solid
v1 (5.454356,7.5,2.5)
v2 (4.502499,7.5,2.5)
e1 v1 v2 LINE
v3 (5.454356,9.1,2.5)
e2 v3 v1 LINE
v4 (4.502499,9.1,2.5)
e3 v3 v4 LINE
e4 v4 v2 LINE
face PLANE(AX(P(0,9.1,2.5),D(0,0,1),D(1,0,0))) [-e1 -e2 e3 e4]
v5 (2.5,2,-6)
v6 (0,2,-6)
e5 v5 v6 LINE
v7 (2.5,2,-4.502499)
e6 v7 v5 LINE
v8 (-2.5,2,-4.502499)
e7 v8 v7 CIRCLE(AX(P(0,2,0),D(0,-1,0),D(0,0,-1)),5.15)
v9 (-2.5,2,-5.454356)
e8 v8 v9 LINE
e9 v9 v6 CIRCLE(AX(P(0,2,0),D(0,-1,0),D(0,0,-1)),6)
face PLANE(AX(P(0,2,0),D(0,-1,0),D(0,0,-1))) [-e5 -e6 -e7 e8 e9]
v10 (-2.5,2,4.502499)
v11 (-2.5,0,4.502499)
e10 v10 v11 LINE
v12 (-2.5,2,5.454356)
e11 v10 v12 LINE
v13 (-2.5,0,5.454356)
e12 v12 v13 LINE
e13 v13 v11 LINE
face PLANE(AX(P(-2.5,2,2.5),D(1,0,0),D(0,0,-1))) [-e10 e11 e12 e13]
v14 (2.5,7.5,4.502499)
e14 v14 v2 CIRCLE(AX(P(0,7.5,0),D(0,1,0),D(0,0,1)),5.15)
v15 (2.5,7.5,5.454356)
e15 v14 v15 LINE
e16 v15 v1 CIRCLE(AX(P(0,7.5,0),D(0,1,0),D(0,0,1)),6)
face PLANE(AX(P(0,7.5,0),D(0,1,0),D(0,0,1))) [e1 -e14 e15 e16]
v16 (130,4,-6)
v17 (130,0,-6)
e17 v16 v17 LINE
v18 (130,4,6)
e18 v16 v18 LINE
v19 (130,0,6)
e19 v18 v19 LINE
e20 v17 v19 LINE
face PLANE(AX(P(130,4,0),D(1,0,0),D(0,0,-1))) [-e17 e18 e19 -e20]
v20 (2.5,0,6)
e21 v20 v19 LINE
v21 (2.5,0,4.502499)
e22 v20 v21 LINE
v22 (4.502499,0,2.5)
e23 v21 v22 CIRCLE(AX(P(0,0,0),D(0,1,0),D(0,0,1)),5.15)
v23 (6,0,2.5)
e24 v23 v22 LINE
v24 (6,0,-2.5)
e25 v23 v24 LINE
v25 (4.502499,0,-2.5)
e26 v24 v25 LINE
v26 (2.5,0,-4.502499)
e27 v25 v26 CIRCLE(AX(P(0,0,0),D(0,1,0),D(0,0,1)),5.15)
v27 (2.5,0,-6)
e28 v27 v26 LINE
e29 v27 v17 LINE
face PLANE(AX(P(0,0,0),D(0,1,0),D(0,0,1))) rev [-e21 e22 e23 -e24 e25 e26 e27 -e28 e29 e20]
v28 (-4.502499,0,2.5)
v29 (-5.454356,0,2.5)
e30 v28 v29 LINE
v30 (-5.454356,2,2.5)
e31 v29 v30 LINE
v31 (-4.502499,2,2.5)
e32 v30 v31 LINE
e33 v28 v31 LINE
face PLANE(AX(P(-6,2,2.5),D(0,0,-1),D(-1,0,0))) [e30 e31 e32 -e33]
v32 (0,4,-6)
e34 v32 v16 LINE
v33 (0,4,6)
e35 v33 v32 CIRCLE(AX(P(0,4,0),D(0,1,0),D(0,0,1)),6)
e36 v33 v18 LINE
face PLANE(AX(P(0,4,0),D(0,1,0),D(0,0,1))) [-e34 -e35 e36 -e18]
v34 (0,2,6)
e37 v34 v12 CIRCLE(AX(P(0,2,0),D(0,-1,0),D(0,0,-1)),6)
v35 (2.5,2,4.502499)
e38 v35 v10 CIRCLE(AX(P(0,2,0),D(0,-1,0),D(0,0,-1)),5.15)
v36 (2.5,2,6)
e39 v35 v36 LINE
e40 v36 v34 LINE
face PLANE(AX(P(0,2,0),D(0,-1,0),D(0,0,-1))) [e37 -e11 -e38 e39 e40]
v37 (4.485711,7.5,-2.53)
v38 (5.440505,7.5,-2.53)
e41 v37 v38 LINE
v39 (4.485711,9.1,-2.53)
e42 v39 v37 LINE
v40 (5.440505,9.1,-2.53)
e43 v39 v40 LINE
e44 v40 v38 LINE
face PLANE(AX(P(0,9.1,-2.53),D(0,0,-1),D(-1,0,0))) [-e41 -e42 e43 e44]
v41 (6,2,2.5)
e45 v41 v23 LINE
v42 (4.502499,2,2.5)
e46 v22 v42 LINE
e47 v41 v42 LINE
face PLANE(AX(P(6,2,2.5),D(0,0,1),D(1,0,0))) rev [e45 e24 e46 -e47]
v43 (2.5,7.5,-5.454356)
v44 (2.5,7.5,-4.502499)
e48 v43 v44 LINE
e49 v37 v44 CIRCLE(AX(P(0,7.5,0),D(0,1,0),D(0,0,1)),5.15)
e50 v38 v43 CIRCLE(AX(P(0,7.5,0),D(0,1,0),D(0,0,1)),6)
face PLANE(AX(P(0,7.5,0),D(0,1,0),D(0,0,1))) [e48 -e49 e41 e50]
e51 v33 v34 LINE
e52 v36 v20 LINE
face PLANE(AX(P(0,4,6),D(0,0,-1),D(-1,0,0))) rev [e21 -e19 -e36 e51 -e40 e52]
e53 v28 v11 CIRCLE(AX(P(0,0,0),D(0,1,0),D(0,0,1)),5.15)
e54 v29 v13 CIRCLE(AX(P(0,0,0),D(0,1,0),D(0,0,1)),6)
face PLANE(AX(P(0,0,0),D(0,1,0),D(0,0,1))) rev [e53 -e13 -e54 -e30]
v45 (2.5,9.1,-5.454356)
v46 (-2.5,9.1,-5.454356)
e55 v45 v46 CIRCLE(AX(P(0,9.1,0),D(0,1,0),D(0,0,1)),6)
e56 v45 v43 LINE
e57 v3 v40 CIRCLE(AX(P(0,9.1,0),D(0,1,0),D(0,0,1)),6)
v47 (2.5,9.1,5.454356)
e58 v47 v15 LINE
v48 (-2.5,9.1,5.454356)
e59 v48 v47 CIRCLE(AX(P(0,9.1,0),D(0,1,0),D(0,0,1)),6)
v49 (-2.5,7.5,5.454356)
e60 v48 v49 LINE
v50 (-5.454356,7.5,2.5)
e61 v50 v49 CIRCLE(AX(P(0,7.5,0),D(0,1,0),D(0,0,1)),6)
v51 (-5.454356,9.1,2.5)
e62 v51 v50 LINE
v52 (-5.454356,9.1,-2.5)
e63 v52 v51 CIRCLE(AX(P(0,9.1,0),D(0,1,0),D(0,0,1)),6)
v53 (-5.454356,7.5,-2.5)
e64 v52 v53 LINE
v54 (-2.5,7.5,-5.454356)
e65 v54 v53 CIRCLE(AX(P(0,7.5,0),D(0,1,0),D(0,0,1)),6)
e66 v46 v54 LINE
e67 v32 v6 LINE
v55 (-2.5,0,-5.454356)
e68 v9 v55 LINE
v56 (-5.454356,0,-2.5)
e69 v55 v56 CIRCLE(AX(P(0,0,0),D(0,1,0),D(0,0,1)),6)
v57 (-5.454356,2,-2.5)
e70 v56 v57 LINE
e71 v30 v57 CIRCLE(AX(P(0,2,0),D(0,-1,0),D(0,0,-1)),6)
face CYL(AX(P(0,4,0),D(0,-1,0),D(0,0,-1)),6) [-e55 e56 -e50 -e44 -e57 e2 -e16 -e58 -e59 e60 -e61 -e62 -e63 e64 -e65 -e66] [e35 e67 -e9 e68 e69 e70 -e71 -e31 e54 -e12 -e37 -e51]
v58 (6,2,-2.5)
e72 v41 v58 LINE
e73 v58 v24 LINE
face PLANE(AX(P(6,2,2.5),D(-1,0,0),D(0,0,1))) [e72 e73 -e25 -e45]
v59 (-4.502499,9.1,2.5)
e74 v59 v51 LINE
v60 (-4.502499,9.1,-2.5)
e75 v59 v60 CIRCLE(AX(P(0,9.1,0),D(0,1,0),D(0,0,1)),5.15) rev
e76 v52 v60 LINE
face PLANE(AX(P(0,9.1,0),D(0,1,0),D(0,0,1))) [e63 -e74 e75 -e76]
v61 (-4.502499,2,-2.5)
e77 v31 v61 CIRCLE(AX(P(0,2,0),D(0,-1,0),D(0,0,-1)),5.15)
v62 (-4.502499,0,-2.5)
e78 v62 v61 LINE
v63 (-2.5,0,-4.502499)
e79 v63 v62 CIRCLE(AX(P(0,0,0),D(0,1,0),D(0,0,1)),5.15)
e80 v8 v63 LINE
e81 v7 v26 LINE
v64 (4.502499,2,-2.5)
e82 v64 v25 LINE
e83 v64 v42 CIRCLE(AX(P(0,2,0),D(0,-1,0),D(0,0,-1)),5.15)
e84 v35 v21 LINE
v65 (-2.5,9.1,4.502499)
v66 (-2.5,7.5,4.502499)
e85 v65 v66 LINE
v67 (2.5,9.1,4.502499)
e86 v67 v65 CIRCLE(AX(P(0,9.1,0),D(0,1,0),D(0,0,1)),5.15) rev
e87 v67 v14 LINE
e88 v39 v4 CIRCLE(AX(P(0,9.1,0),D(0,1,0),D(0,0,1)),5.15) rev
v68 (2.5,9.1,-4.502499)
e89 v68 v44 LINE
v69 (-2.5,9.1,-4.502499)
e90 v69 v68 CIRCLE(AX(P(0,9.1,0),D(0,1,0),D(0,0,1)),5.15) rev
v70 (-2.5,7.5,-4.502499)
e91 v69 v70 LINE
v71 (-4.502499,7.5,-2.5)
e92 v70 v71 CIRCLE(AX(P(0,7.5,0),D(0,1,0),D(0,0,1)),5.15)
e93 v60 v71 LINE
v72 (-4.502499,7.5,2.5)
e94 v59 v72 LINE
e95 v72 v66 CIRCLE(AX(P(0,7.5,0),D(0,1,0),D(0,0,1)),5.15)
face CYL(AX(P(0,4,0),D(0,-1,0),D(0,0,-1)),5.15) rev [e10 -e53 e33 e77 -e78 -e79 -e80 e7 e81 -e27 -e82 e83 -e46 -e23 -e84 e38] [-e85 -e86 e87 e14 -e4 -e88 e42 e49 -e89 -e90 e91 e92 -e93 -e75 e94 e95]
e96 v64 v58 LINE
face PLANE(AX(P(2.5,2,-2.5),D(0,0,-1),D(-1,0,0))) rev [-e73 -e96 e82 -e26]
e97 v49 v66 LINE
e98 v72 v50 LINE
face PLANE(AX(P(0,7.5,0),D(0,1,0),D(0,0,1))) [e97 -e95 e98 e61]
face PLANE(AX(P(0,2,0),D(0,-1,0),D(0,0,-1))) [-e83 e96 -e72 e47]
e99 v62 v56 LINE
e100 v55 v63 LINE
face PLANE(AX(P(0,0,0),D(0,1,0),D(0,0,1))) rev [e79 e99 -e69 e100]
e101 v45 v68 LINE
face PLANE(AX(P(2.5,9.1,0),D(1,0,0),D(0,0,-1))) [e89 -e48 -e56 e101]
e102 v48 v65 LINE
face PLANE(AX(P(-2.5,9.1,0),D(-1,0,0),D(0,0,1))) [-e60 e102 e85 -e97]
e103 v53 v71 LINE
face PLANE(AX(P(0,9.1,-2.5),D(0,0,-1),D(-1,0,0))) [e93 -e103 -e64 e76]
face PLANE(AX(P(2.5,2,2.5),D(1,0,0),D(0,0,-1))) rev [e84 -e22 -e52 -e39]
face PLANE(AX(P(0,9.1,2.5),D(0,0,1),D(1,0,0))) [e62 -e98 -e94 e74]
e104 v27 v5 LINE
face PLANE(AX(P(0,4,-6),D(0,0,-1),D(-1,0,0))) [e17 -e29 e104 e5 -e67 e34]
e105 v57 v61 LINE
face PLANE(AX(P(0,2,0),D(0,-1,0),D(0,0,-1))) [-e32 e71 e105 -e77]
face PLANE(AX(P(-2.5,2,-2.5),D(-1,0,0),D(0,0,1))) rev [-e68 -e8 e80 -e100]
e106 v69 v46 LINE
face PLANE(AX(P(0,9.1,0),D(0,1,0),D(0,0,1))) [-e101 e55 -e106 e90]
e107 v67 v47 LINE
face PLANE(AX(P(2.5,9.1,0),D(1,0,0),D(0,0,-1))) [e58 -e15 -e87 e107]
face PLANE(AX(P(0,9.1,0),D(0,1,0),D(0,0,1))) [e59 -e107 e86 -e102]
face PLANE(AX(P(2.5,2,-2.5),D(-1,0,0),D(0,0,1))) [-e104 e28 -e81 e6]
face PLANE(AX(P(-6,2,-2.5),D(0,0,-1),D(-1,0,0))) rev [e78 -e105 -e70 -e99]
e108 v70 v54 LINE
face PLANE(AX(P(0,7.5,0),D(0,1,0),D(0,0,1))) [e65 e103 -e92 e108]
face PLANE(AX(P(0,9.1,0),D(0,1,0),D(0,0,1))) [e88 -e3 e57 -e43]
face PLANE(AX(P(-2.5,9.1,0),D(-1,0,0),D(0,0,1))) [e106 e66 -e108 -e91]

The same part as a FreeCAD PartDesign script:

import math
import FreeCAD as App
import Part
import Sketcher

doc = App.newDocument("Part")
params = doc.addObject("Spreadsheet::Sheet", "Params")
for row, (alias, value) in enumerate([
    ("sketch1_radius", "6 mm"),
    ("sketch1_diameter", "10.3 mm"),
    ("sketch1_width", "130 mm"),
    ("pad1_length", "4 mm"),
    ("sketch2_diameter", "12 mm"),
    ("sketch2_diameter2", "10.3 mm"),
    ("pad2_length", "3.5 mm"),
    ("sketch3_width", "5 mm"),
    ("sketch3_height", "6 mm"),
    ("sketch3_width2", "3.5 mm"),
    ("pocket1_length", "2 mm"),
    ("sketch4_radius", "6 mm"),
    ("sketch4_radius2", "5.15 mm"),
    ("pad3_length", "1.6 mm"),
], start=1):
    params.set(f"A{row}", alias)
    params.set(f"B{row}", "=" + value)
    params.setAlias(f"B{row}", alias)

body = doc.addObject("PartDesign::Body", "Body")

sketch1 = body.newObject("Sketcher::SketchObject", "Sketch")
sketch1.AttachmentSupport = (doc.getObject("XZ_Plane"), [""])
sketch1.MapMode = "FlatFace"
sketch1.addGeometry(Part.LineSegment(App.Vector(130, -6, 0), App.Vector(0, -6, 0)), False)
sketch1.addGeometry(Part.ArcOfCircle(Part.Circle(App.Vector(0, 0, 0), App.Vector(0, 0, 1), 6), math.radians(90), math.radians(270)), False)
sketch1.addGeometry(Part.LineSegment(App.Vector(0, 6, 0), App.Vector(130, 6, 0)), False)
sketch1.addGeometry(Part.LineSegment(App.Vector(130, 6, 0), App.Vector(130, -6, 0)), False)
sketch1.addGeometry(Part.Circle(App.Vector(0, 0, 0), App.Vector(0, 0, 1), 5), False)
sketch1.addConstraint(Sketcher.Constraint("Tangent", 0, 2, 1, 2))
sketch1.addConstraint(Sketcher.Constraint("Tangent", 1, 1, 2, 1))
sketch1.addConstraint(Sketcher.Constraint("Coincident", 2, 2, 3, 1))
sketch1.addConstraint(Sketcher.Constraint("Coincident", 3, 2, 0, 1))
sketch1.addConstraint(Sketcher.Constraint("Horizontal", 0))
sketch1.addConstraint(Sketcher.Constraint("Horizontal", 2))
sketch1.addConstraint(Sketcher.Constraint("Vertical", 3))
sketch1.addConstraint(Sketcher.Constraint("Coincident", 1, 3, -1, 1))
sketch1.addConstraint(Sketcher.Constraint("Coincident", 4, 3, -1, 1))
sketch1.addConstraint(Sketcher.Constraint("Radius", 1, 6.0))
sketch1.addConstraint(Sketcher.Constraint("Diameter", 4, 10.3))
sketch1.addConstraint(Sketcher.Constraint("DistanceX", 0, 2, 0, 1, 130.0))
sketch1.setExpression("Constraints[9]", "Params.sketch1_radius")
sketch1.setExpression("Constraints[10]", "Params.sketch1_diameter")
sketch1.setExpression("Constraints[11]", "Params.sketch1_width")
pad1 = body.newObject("PartDesign::Pad", "Pad")
pad1.Profile = sketch1
pad1.setExpression("Length", "Params.pad1_length")
pad1.Reversed = True

sketch2 = body.newObject("Sketcher::SketchObject", "Sketch001")
sketch2.AttachmentSupport = (doc.getObject("XZ_Plane"), [""])
sketch2.MapMode = "FlatFace"
sketch2.AttachmentOffset = App.Placement(App.Vector(0, 0, -4), App.Rotation())
sketch2.addGeometry(Part.Circle(App.Vector(0, 0, 0), App.Vector(0, 0, 1), 6), False)
sketch2.addGeometry(Part.Circle(App.Vector(0, 0, 0), App.Vector(0, 0, 1), 5), False)
sketch2.addConstraint(Sketcher.Constraint("Coincident", 0, 3, -1, 1))
sketch2.addConstraint(Sketcher.Constraint("Coincident", 1, 3, -1, 1))
sketch2.addConstraint(Sketcher.Constraint("Diameter", 0, 12.0))
sketch2.addConstraint(Sketcher.Constraint("Diameter", 1, 10.3))
sketch2.setExpression("Constraints[2]", "Params.sketch2_diameter")
sketch2.setExpression("Constraints[3]", "Params.sketch2_diameter2")
pad2 = body.newObject("PartDesign::Pad", "Pad001")
pad2.Profile = sketch2
pad2.setExpression("Length", "Params.pad2_length")
pad2.Reversed = True

sketch3 = body.newObject("Sketcher::SketchObject", "Sketch002")
sketch3.AttachmentSupport = (doc.getObject("XZ_Plane"), [""])
sketch3.MapMode = "FlatFace"
sketch3.addGeometry(Part.LineSegment(App.Vector(-2.5, -8.5, 0), App.Vector(2.5, -8.5, 0)), False)
sketch3.addGeometry(Part.LineSegment(App.Vector(2.5, -8.5, 0), App.Vector(2.5, -2.5, 0)), False)
sketch3.addGeometry(Part.LineSegment(App.Vector(2.5, -2.5, 0), App.Vector(6, -2.5, 0)), False)
sketch3.addGeometry(Part.LineSegment(App.Vector(6, -2.5, 0), App.Vector(6, 2.5, 0)), False)
sketch3.addGeometry(Part.LineSegment(App.Vector(6, 2.5, 0), App.Vector(2.5, 2.5, 0)), False)
sketch3.addGeometry(Part.LineSegment(App.Vector(2.5, 2.5, 0), App.Vector(2.5, 8.5, 0)), False)
sketch3.addGeometry(Part.LineSegment(App.Vector(2.5, 8.5, 0), App.Vector(-2.5, 8.5, 0)), False)
sketch3.addGeometry(Part.LineSegment(App.Vector(-2.5, 8.5, 0), App.Vector(-2.5, 2.5, 0)), False)
sketch3.addGeometry(Part.LineSegment(App.Vector(-2.5, 2.5, 0), App.Vector(-6, 2.5, 0)), False)
sketch3.addGeometry(Part.LineSegment(App.Vector(-6, 2.5, 0), App.Vector(-6, -2.5, 0)), False)
sketch3.addGeometry(Part.LineSegment(App.Vector(-6, -2.5, 0), App.Vector(-2.5, -2.5, 0)), False)
sketch3.addGeometry(Part.LineSegment(App.Vector(-2.5, -2.5, 0), App.Vector(-2.5, -8.5, 0)), False)
sketch3.addConstraint(Sketcher.Constraint("Coincident", 0, 2, 1, 1))
sketch3.addConstraint(Sketcher.Constraint("Coincident", 1, 2, 2, 1))
sketch3.addConstraint(Sketcher.Constraint("Coincident", 2, 2, 3, 1))
sketch3.addConstraint(Sketcher.Constraint("Coincident", 3, 2, 4, 1))
sketch3.addConstraint(Sketcher.Constraint("Coincident", 4, 2, 5, 1))
sketch3.addConstraint(Sketcher.Constraint("Coincident", 5, 2, 6, 1))
sketch3.addConstraint(Sketcher.Constraint("Coincident", 6, 2, 7, 1))
sketch3.addConstraint(Sketcher.Constraint("Coincident", 7, 2, 8, 1))
sketch3.addConstraint(Sketcher.Constraint("Coincident", 8, 2, 9, 1))
sketch3.addConstraint(Sketcher.Constraint("Coincident", 9, 2, 10, 1))
sketch3.addConstraint(Sketcher.Constraint("Coincident", 10, 2, 11, 1))
sketch3.addConstraint(Sketcher.Constraint("Coincident", 11, 2, 0, 1))
sketch3.addConstraint(Sketcher.Constraint("Horizontal", 0))
sketch3.addConstraint(Sketcher.Constraint("Vertical", 1))
sketch3.addConstraint(Sketcher.Constraint("Horizontal", 2))
sketch3.addConstraint(Sketcher.Constraint("Vertical", 3))
sketch3.addConstraint(Sketcher.Constraint("Horizontal", 4))
sketch3.addConstraint(Sketcher.Constraint("Vertical", 5))
sketch3.addConstraint(Sketcher.Constraint("Horizontal", 6))
sketch3.addConstraint(Sketcher.Constraint("Vertical", 7))
sketch3.addConstraint(Sketcher.Constraint("Horizontal", 8))
sketch3.addConstraint(Sketcher.Constraint("Vertical", 9))
sketch3.addConstraint(Sketcher.Constraint("Horizontal", 10))
sketch3.addConstraint(Sketcher.Constraint("Vertical", 11))
sketch3.addConstraint(Sketcher.Constraint("Symmetric", 0, 2, 6, 2, -1, 1))
sketch3.addConstraint(Sketcher.Constraint("Symmetric", 2, 2, 8, 2, -1, 1))
sketch3.addConstraint(Sketcher.Constraint("Symmetric", 4, 2, 10, 2, -1, 1))
sketch3.addConstraint(Sketcher.Constraint("Symmetric", 4, 2, 7, 2, -2))
sketch3.addConstraint(Sketcher.Constraint("Equal", 6, 3))
sketch3.addConstraint(Sketcher.Constraint("DistanceX", 0, 1, 0, 2, 5.0))
sketch3.addConstraint(Sketcher.Constraint("DistanceY", 1, 1, 1, 2, 6.0))
sketch3.addConstraint(Sketcher.Constraint("DistanceX", 2, 1, 2, 2, 3.5))
sketch3.setExpression("Constraints[29]", "Params.sketch3_width")
sketch3.setExpression("Constraints[30]", "Params.sketch3_height")
sketch3.setExpression("Constraints[31]", "Params.sketch3_width2")
pocket1 = body.newObject("PartDesign::Pocket", "Pocket")
pocket1.Profile = sketch3
pocket1.setExpression("Length", "Params.pocket1_length")

sketch4 = body.newObject("Sketcher::SketchObject", "Sketch003")
sketch4.AttachmentSupport = (doc.getObject("XZ_Plane"), [""])
sketch4.MapMode = "FlatFace"
sketch4.AttachmentOffset = App.Placement(App.Vector(0, 0, -7.5), App.Rotation())
sketch4.addGeometry(Part.ArcOfCircle(Part.Circle(App.Vector(0, 0, 0), App.Vector(0, 0, 1), 5.2), math.radians(151), math.radians(209)), False)
sketch4.addGeometry(Part.LineSegment(App.Vector(-4.5, -2.5, 0), App.Vector(-5.5, -2.5, 0)), False)
sketch4.addGeometry(Part.ArcOfCircle(Part.Circle(App.Vector(0, 0, 0), App.Vector(0, 0, 1), 6), math.radians(155), math.radians(205)), False)
sketch4.addGeometry(Part.LineSegment(App.Vector(-5.5, 2.5, 0), App.Vector(-4.5, 2.5, 0)), False)
sketch4.addGeometry(Part.ArcOfCircle(Part.Circle(App.Vector(0, 0, 0), App.Vector(0, 0, 1), 5.2), math.radians(-119), math.radians(-61)), False)
sketch4.addGeometry(Part.LineSegment(App.Vector(2.5, -4.5, 0), App.Vector(2.5, -5.5, 0)), False)
sketch4.addGeometry(Part.ArcOfCircle(Part.Circle(App.Vector(0, 0, 0), App.Vector(0, 0, 1), 6), math.radians(-115), math.radians(-65)), False)
sketch4.addGeometry(Part.LineSegment(App.Vector(-2.5, -5.5, 0), App.Vector(-2.5, -4.5, 0)), False)
sketch4.addGeometry(Part.LineSegment(App.Vector(5.4, -2.5, 0), App.Vector(4.5, -2.5, 0)), False)
sketch4.addGeometry(Part.ArcOfCircle(Part.Circle(App.Vector(0, 0, 0), App.Vector(0, 0, 1), 5.1), math.radians(-29), math.radians(0)), False)
sketch4.addGeometry(Part.ArcOfCircle(Part.Circle(App.Vector(0, 0, 0), App.Vector(0, 0, 1), 5.2), math.radians(0), math.radians(29)), False)
sketch4.addGeometry(Part.LineSegment(App.Vector(4.5, 2.5, 0), App.Vector(5.5, 2.5, 0)), False)
sketch4.addGeometry(Part.ArcOfCircle(Part.Circle(App.Vector(0, 0, 0), App.Vector(0, 0, 1), 6), math.radians(0), math.radians(25)), False)
sketch4.addGeometry(Part.ArcOfCircle(Part.Circle(App.Vector(0, 0, 0), App.Vector(0, 0, 1), 6), math.radians(-25), math.radians(0)), False)
sketch4.addGeometry(Part.LineSegment(App.Vector(2.5, 5.5, 0), App.Vector(2.5, 4.5, 0)), False)
sketch4.addGeometry(Part.ArcOfCircle(Part.Circle(App.Vector(0, 0, 0), App.Vector(0, 0, 1), 5.2), math.radians(61), math.radians(119)), False)
sketch4.addGeometry(Part.LineSegment(App.Vector(-2.5, 4.5, 0), App.Vector(-2.5, 5.5, 0)), False)
sketch4.addGeometry(Part.ArcOfCircle(Part.Circle(App.Vector(0, 0, 0), App.Vector(0, 0, 1), 6), math.radians(65), math.radians(115)), False)
sketch4.addConstraint(Sketcher.Constraint("Coincident", 0, 2, 1, 1))
sketch4.addConstraint(Sketcher.Constraint("Coincident", 1, 2, 2, 2))
sketch4.addConstraint(Sketcher.Constraint("Coincident", 2, 1, 3, 1))
sketch4.addConstraint(Sketcher.Constraint("Coincident", 3, 2, 0, 1))
sketch4.addConstraint(Sketcher.Constraint("Coincident", 4, 2, 5, 1))
sketch4.addConstraint(Sketcher.Constraint("Coincident", 5, 2, 6, 2))
sketch4.addConstraint(Sketcher.Constraint("Coincident", 6, 1, 7, 1))
sketch4.addConstraint(Sketcher.Constraint("Coincident", 7, 2, 4, 1))
sketch4.addConstraint(Sketcher.Constraint("Coincident", 8, 2, 9, 1))
sketch4.addConstraint(Sketcher.Constraint("Tangent", 9, 2, 10, 1))
sketch4.addConstraint(Sketcher.Constraint("Coincident", 10, 2, 11, 1))
sketch4.addConstraint(Sketcher.Constraint("Coincident", 11, 2, 12, 2))
sketch4.addConstraint(Sketcher.Constraint("Tangent", 12, 1, 13, 2))
sketch4.addConstraint(Sketcher.Constraint("Coincident", 13, 1, 8, 1))
sketch4.addConstraint(Sketcher.Constraint("Coincident", 14, 2, 15, 1))
sketch4.addConstraint(Sketcher.Constraint("Coincident", 15, 2, 16, 1))
sketch4.addConstraint(Sketcher.Constraint("Coincident", 16, 2, 17, 2))
sketch4.addConstraint(Sketcher.Constraint("Coincident", 17, 1, 14, 1))
sketch4.addConstraint(Sketcher.Constraint("Horizontal", 1))
sketch4.addConstraint(Sketcher.Constraint("Horizontal", 3))
sketch4.addConstraint(Sketcher.Constraint("Vertical", 5))
sketch4.addConstraint(Sketcher.Constraint("Vertical", 7))
sketch4.addConstraint(Sketcher.Constraint("Horizontal", 8))
sketch4.addConstraint(Sketcher.Constraint("Horizontal", 11))
sketch4.addConstraint(Sketcher.Constraint("Vertical", 14))
sketch4.addConstraint(Sketcher.Constraint("Vertical", 16))
sketch4.addConstraint(Sketcher.Constraint("Coincident", 0, 3, -1, 1))
sketch4.addConstraint(Sketcher.Constraint("Coincident", 2, 3, -1, 1))
sketch4.addConstraint(Sketcher.Constraint("Coincident", 4, 3, -1, 1))
sketch4.addConstraint(Sketcher.Constraint("Coincident", 6, 3, -1, 1))
sketch4.addConstraint(Sketcher.Constraint("Coincident", 9, 3, -1, 1))
sketch4.addConstraint(Sketcher.Constraint("Coincident", 12, 3, -1, 1))
sketch4.addConstraint(Sketcher.Constraint("Coincident", 15, 3, -1, 1))
sketch4.addConstraint(Sketcher.Constraint("Coincident", 17, 3, -1, 1))
sketch4.addConstraint(Sketcher.Constraint("Equal", 0, 4))
sketch4.addConstraint(Sketcher.Constraint("Equal", 2, 6))
sketch4.addConstraint(Sketcher.Constraint("Equal", 4, 9))
sketch4.addConstraint(Sketcher.Constraint("Equal", 9, 10))
sketch4.addConstraint(Sketcher.Constraint("Equal", 6, 12))
sketch4.addConstraint(Sketcher.Constraint("Equal", 12, 13))
sketch4.addConstraint(Sketcher.Constraint("Equal", 10, 15))
sketch4.addConstraint(Sketcher.Constraint("Equal", 13, 17))
sketch4.addConstraint(Sketcher.Constraint("PointOnObject", 9, 2, -1))
sketch4.addConstraint(Sketcher.Constraint("PointOnObject", 12, 1, -1))
sketch4.addConstraint(Sketcher.Constraint("Horizontal", 5, 2, 6, 1))
sketch4.addConstraint(Sketcher.Constraint("Horizontal", 3, 2, 10, 2))
sketch4.addConstraint(Sketcher.Constraint("Horizontal", 14, 2, 15, 2))
sketch4.addConstraint(Sketcher.Constraint("Vertical", 1, 2, 2, 1))
sketch4.addConstraint(Sketcher.Constraint("Vertical", 5, 2, 14, 2))
sketch4.addConstraint(Sketcher.Constraint("Equal", 11, 5))
sketch4.addConstraint(Sketcher.Constraint("Radius", 2, 6.0))
sketch4.addConstraint(Sketcher.Constraint("Radius", 0, 5.15))
sketch4.addConstraint(Sketcher.Constraint("DistanceY", 1, 2, 2, 1, 5.0))
sketch4.addConstraint(Sketcher.Constraint("DistanceY", 8, 2, -1, 1, 2.53))
sketch4.setExpression("Constraints[50]", "Params.sketch4_radius")
sketch4.setExpression("Constraints[51]", "Params.sketch4_radius2")
pad3 = body.newObject("PartDesign::Pad", "Pad002")
pad3.Profile = sketch4
pad3.setExpression("Length", "Params.pad3_length")
pad3.Reversed = True

doc.recompute()
